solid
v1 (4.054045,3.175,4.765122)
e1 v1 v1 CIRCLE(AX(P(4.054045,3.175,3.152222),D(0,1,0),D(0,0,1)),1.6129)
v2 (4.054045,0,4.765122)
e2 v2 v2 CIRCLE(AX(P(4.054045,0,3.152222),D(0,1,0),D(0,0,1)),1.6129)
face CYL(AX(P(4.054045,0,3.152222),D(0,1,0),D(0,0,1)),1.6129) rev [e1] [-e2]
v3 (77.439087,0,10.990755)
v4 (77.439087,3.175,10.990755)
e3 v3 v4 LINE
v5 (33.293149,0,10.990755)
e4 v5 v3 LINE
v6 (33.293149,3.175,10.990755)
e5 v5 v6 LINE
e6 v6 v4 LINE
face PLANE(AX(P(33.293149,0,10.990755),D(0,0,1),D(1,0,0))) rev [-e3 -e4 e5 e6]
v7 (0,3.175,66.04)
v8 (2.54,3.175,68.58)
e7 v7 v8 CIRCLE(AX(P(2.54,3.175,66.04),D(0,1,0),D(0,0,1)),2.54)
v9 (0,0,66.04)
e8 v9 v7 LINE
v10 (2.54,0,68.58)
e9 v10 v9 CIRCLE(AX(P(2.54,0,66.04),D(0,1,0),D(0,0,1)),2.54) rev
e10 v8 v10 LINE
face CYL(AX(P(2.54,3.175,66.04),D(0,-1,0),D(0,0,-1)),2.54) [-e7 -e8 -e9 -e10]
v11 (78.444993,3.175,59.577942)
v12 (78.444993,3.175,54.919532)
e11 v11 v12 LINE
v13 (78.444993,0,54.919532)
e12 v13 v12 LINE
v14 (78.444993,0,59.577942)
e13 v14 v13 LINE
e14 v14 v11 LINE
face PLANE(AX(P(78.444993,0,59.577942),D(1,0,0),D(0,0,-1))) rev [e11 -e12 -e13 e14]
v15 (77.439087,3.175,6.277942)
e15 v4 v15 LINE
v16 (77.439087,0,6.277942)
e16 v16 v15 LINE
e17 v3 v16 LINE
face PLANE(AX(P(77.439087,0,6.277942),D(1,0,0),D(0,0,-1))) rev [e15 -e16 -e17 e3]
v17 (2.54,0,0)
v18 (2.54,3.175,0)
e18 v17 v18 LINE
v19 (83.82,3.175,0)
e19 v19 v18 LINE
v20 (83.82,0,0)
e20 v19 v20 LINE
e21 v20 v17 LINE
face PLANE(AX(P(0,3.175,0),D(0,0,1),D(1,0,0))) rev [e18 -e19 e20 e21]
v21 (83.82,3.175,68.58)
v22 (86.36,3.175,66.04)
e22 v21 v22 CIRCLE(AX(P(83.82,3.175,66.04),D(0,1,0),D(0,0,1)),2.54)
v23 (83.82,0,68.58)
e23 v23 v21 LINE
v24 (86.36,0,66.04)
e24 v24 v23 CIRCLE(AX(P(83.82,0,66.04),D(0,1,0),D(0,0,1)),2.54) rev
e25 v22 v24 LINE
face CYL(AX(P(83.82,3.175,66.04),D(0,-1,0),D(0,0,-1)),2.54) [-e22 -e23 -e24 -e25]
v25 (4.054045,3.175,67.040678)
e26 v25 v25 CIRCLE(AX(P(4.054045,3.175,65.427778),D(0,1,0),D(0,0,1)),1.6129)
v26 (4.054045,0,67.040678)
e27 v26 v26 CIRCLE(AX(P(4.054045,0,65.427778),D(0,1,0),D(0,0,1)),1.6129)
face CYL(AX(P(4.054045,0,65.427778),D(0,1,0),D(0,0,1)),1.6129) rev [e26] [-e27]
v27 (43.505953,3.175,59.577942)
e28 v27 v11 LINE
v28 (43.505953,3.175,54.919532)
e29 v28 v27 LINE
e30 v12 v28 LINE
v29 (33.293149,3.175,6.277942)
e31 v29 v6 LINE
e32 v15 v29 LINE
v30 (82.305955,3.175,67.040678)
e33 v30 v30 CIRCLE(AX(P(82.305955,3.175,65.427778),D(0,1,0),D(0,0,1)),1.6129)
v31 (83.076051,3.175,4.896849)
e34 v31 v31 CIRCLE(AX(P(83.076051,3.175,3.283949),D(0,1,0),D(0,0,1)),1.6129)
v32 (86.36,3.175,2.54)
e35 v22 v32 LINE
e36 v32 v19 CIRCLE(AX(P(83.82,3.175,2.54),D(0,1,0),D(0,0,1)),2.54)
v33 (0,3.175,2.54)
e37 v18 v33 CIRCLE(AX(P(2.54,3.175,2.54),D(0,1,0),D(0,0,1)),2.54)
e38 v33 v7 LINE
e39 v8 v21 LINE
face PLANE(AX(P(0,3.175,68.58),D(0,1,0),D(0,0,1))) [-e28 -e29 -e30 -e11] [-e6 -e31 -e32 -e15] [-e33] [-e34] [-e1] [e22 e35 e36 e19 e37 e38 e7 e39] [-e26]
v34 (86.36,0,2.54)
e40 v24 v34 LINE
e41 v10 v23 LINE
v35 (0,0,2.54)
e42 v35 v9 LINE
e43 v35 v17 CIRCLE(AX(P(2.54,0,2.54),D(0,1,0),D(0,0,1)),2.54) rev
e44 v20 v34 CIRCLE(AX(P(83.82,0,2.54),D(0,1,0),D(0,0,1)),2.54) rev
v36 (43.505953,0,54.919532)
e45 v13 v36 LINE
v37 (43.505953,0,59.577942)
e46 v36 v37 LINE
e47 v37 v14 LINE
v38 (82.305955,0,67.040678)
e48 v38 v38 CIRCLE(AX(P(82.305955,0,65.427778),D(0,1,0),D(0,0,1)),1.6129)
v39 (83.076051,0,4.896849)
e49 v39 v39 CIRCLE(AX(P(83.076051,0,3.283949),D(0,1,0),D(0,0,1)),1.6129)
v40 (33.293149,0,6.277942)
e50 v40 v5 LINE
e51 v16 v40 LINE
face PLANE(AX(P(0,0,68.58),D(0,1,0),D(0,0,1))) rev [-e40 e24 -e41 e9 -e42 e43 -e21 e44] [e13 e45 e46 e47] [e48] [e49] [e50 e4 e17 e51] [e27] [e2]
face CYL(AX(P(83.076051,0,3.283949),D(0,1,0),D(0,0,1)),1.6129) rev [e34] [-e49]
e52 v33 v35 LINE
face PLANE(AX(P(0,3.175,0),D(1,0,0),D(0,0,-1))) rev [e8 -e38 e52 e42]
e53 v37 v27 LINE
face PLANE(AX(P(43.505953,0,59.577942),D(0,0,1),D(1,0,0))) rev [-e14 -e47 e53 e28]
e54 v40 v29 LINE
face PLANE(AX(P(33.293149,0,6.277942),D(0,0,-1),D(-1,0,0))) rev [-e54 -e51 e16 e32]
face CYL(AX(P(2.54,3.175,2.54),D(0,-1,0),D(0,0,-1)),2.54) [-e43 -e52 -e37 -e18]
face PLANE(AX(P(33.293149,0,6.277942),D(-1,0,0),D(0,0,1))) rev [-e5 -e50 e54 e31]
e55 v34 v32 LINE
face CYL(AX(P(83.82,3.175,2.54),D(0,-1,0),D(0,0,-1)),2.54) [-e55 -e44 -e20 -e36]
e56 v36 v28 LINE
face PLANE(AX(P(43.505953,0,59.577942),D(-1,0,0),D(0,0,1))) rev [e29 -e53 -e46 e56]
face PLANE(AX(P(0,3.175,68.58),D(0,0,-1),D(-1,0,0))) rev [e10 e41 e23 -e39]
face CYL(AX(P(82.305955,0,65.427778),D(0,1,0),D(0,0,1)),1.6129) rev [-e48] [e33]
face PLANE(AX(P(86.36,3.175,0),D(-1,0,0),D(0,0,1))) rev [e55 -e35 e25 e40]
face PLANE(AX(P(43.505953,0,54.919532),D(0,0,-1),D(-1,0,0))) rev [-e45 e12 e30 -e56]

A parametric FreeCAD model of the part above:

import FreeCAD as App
import Part
import Sketcher

V = App.Vector
Q = App.Units.Quantity


def edges_at(feature, points):
    """Names of the edges that pass closest to the given points."""
    edges = feature.Shape.Edges
    near = lambda p: min(range(len(edges)), key=lambda i: edges[i].distToShape(Part.Vertex(*p))[0])
    return sorted({f"Edge{near(p) + 1}" for p in points})

doc = App.newDocument("Part")
body = doc.addObject("PartDesign::Body", "Body")

# Sketch on XZ plane
sketch1 = doc.addObject("Sketcher::SketchObject", "Sketch")
body.addObject(sketch1)
sketch1.AttachmentSupport = (doc.XZ_Plane, [""])
sketch1.MapMode = "FlatFace"
sketch1.addGeometry(Part.LineSegment(V(0, 0, 0), V(0, 69, 0)), False)
sketch1.addGeometry(Part.LineSegment(V(0, 69, 0), V(86, 69, 0)), False)
sketch1.addGeometry(Part.LineSegment(V(86, 69, 0), V(86, 0, 0)), False)
sketch1.addGeometry(Part.LineSegment(V(86, 0, 0), V(0, 0, 0)), False)
sketch1.addConstraint(Sketcher.Constraint("Coincident", 0, 2, 1, 1))
sketch1.addConstraint(Sketcher.Constraint("Coincident", 1, 2, 2, 1))
sketch1.addConstraint(Sketcher.Constraint("Coincident", 2, 2, 3, 1))
sketch1.addConstraint(Sketcher.Constraint("Coincident", 3, 2, 0, 1))
sketch1.addConstraint(Sketcher.Constraint("Vertical", 0))
sketch1.addConstraint(Sketcher.Constraint("Horizontal", 1))
sketch1.addConstraint(Sketcher.Constraint("Vertical", 2))
sketch1.addConstraint(Sketcher.Constraint("Horizontal", 3))
sketch1.addConstraint(Sketcher.Constraint("Coincident", 3, 2, -1, 1))
sketch1.addConstraint(Sketcher.Constraint("DistanceX", 1, 1, 1, 2, Q("3.4 in")))
sketch1.addConstraint(Sketcher.Constraint("DistanceY", 0, 1, 0, 2, Q("2.7 in")))
pad1 = doc.addObject("PartDesign::Pad", "Pad")
body.addObject(pad1)
pad1.Profile = sketch1
pad1.Length = Q("0.125 in")
pad1.Reversed = True
doc.recompute()

fillet = doc.addObject("PartDesign::Fillet", "Fillet")
body.addObject(fillet)
fillet.Base = (pad1, edges_at(pad1, [
    (0, 1.587, 0),
    (86.36, 1.587, 0),
    (86.36, 1.587, 68.58),
    (0, 1.587, 68.58),
]))
fillet.Radius = Q("0.1 in")

# Sketch on XZ plane
sketch2 = doc.addObject("Sketcher::SketchObject", "Sketch001")
body.addObject(sketch2)
sketch2.AttachmentSupport = (doc.XZ_Plane, [""])
sketch2.MapMode = "FlatFace"
sketch2.AttachmentOffset = App.Placement(V(0, 0, -0.125 * 25.4), App.Rotation())
sketch2.addGeometry(Part.Circle(V(4.1, 3.2, 0), V(0, 0, 1), 1.6), False)
sketch2.addGeometry(Part.Circle(V(83.1, 3.3, 0), V(0, 0, 1), 1.6), False)
sketch2.addGeometry(Part.Circle(V(82.3, 65.4, 0), V(0, 0, 1), 1.6), False)
sketch2.addGeometry(Part.Circle(V(4.1, 65.4, 0), V(0, 0, 1), 1.6), False)
sketch2.addConstraint(Sketcher.Constraint("Equal", 0, 1))
sketch2.addConstraint(Sketcher.Constraint("Equal", 1, 2))
sketch2.addConstraint(Sketcher.Constraint("Equal", 2, 3))
sketch2.addConstraint(Sketcher.Constraint("Horizontal", 2, 3, 3, 3))
sketch2.addConstraint(Sketcher.Constraint("Vertical", 0, 3, 3, 3))
sketch2.addConstraint(Sketcher.Constraint("Diameter", 0, Q("0.127 in")))
sketch2.addConstraint(Sketcher.Constraint("DistanceX", -1, 1, 1, 3, 83.076051))
sketch2.addConstraint(Sketcher.Constraint("DistanceY", -1, 1, 1, 3, 3.283949))
sketch2.addConstraint(Sketcher.Constraint("DistanceY", 1, 3, 2, 3, 62.143829))
sketch2.addConstraint(Sketcher.Constraint("DistanceX", 0, 3, 2, 3, 78.251909))
sketch2.addConstraint(Sketcher.Constraint("DistanceX", -1, 1, 0, 3, 4.054045))
sketch2.addConstraint(Sketcher.Constraint("DistanceY", -1, 1, 0, 3, 3.152222))
pocket1 = doc.addObject("PartDesign::Pocket", "Pocket")
body.addObject(pocket1)
pocket1.Profile = sketch2
pocket1.Type = "ThroughAll"
pocket1.Reversed = True

# Sketch on XZ plane
sketch3 = doc.addObject("Sketcher::SketchObject", "Sketch002")
body.addObject(sketch3)
sketch3.AttachmentSupport = (doc.XZ_Plane, [""])
sketch3.MapMode = "FlatFace"
sketch3.AttachmentOffset = App.Placement(V(0, 0, -0.125 * 25.4), App.Rotation())
sketch3.addGeometry(Part.LineSegment(V(33.3, 6.3, 0), V(33.3, 11, 0)), False)
sketch3.addGeometry(Part.LineSegment(V(33.3, 11, 0), V(77.4, 11, 0)), False)
sketch3.addGeometry(Part.LineSegment(V(77.4, 11, 0), V(77.4, 6.3, 0)), False)
sketch3.addGeometry(Part.LineSegment(V(77.4, 6.3, 0), V(33.3, 6.3, 0)), False)
sketch3.addGeometry(Part.LineSegment(V(43.5, 54.9, 0), V(43.5, 59.6, 0)), False)
sketch3.addGeometry(Part.LineSegment(V(43.5, 59.6, 0), V(78.4, 59.6, 0)), False)
sketch3.addGeometry(Part.LineSegment(V(78.4, 59.6, 0), V(78.4, 54.9, 0)), False)
sketch3.addGeometry(Part.LineSegment(V(78.4, 54.9, 0), V(43.5, 54.9, 0)), False)
sketch3.addConstraint(Sketcher.Constraint("Coincident", 0, 2, 1, 1))
sketch3.addConstraint(Sketcher.Constraint("Coincident", 1, 2, 2, 1))
sketch3.addConstraint(Sketcher.Constraint("Coincident", 2, 2, 3, 1))
sketch3.addConstraint(Sketcher.Constraint("Coincident", 3, 2, 0, 1))
sketch3.addConstraint(Sketcher.Constraint("Coincident", 4, 2, 5, 1))
sketch3.addConstraint(Sketcher.Constraint("Coincident", 5, 2, 6, 1))
sketch3.addConstraint(Sketcher.Constraint("Coincident", 6, 2, 7, 1))
sketch3.addConstraint(Sketcher.Constraint("Coincident", 7, 2, 4, 1))
sketch3.addConstraint(Sketcher.Constraint("Vertical", 0))
sketch3.addConstraint(Sketcher.Constraint("Horizontal", 1))
sketch3.addConstraint(Sketcher.Constraint("Vertical", 2))
sketch3.addConstraint(Sketcher.Constraint("Horizontal", 3))
sketch3.addConstraint(Sketcher.Constraint("Vertical", 4))
sketch3.addConstraint(Sketcher.Constraint("Horizontal", 5))
sketch3.addConstraint(Sketcher.Constraint("Vertical", 6))
sketch3.addConstraint(Sketcher.Constraint("Horizontal", 7))
sketch3.addConstraint(Sketcher.Constraint("DistanceX", 5, 1, 5, 2, 34.93904))
sketch3.addConstraint(Sketcher.Constraint("DistanceY", 4, 1, 4, 2, 4.65841))
sketch3.addConstraint(Sketcher.Constraint("DistanceY", 3, 2, 4, 2, 53.3))
sketch3.addConstraint(Sketcher.Constraint("DistanceX", 1, 1, 1, 2, 44.145937))
sketch3.addConstraint(Sketcher.Constraint("DistanceY", 0, 1, 0, 2, 4.712813))
sketch3.addConstraint(Sketcher.Constraint("DistanceX", -1, 1, 0, 2, 33.293149))
sketch3.addConstraint(Sketcher.Constraint("DistanceY", -1, 1, 0, 2, 10.990755))
sketch3.addConstraint(Sketcher.Constraint("DistanceX", -1, 1, 4, 2, 43.505953))
pocket2 = doc.addObject("PartDesign::Pocket", "Pocket001")
body.addObject(pocket2)
pocket2.Profile = sketch3
pocket2.Type = "ThroughAll"
pocket2.Reversed = True

doc.recompute()
